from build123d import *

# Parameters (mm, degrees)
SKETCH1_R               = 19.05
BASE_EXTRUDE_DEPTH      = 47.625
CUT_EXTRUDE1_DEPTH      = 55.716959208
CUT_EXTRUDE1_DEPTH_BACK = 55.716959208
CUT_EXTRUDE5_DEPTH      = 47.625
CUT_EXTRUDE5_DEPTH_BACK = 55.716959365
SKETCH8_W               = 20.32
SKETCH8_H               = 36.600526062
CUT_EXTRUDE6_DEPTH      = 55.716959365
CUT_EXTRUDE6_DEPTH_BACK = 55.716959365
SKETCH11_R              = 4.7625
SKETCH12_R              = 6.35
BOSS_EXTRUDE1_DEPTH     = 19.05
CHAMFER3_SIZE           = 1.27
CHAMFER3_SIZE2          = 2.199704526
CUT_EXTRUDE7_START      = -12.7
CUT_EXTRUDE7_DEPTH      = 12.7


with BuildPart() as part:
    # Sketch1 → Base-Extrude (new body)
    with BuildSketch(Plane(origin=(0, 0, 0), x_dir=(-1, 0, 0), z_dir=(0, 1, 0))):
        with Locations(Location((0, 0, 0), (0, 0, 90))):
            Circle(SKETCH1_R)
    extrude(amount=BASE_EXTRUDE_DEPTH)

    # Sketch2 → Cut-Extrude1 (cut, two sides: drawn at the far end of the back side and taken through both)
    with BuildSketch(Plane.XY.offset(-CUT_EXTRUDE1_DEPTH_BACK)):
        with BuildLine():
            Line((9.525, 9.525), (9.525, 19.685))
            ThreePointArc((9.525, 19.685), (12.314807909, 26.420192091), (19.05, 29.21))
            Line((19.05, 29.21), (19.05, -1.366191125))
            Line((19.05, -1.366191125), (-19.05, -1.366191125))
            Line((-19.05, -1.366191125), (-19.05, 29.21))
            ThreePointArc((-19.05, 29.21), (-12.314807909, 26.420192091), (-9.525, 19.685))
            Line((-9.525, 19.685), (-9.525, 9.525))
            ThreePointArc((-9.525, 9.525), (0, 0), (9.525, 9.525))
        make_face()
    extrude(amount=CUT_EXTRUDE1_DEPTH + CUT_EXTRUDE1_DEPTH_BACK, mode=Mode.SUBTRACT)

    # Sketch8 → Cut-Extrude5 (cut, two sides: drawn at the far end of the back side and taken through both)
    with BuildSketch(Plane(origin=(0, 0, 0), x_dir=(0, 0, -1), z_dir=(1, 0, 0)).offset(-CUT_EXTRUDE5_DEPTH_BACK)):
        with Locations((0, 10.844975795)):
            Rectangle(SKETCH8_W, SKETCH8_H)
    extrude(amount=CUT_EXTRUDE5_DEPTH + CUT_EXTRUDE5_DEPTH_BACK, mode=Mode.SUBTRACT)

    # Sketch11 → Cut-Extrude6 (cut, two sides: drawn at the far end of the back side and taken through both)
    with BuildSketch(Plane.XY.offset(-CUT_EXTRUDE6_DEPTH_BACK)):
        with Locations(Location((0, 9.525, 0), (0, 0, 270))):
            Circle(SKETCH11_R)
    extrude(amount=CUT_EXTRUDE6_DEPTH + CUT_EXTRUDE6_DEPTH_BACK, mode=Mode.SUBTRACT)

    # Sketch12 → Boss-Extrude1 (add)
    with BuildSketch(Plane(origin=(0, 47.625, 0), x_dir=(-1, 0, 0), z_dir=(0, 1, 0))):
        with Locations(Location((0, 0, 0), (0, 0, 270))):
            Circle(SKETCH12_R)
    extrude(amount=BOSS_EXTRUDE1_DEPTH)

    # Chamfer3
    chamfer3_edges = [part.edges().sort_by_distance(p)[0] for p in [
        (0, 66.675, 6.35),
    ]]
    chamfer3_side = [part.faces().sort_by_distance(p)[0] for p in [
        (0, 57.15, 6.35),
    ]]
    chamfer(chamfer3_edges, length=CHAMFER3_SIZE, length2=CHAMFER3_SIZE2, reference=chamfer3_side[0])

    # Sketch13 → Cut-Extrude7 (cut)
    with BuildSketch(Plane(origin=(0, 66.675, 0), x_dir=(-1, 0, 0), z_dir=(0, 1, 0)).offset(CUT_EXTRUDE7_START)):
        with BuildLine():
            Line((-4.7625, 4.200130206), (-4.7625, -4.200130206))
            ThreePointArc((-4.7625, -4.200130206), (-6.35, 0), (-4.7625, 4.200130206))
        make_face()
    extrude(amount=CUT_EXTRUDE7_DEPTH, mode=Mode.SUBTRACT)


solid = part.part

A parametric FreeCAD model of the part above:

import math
import FreeCAD as App
import Part
import Sketcher

V = App.Vector
Q = App.Units.Quantity


def edges_at(feature, points):
    """Names of the edges that pass closest to the given points."""
    edges = feature.Shape.Edges
    near = lambda p: min(range(len(edges)), key=lambda i: edges[i].distToShape(Part.Vertex(*p))[0])
    return sorted({f"Edge{near(p) + 1}" for p in points})

doc = App.newDocument("Part")
body = doc.addObject("PartDesign::Body", "Body")

# Sketch on XZ plane
sketch1 = body.newObject("Sketcher::SketchObject", "Sketch")
sketch1.AttachmentSupport = (doc.getObject("XZ_Plane"), [""])
sketch1.MapMode = "FlatFace"
sketch1.addGeometry(Part.Circle(V(0, 0, 0), V(0, 0, 1), 19), False)
sketch1.addConstraint([
    Sketcher.Constraint("Coincident", 0, 3, -1, 1),
    Sketcher.Constraint("Diameter", 0, Q("1.5 in")),
])
pad1 = body.newObject("PartDesign::Pad", "Pad")
pad1.Profile = sketch1
pad1.Length = Q("1.875 in")
pad1.Reversed = True

# Sketch on XY plane
sketch2 = body.newObject("Sketcher::SketchObject", "Sketch001")
sketch2.AttachmentSupport = (doc.getObject("XY_Plane"), [""])
sketch2.MapMode = "FlatFace"
sketch2.addGeometry([
    Part.LineSegment(V(10, 20, 0), V(10, 10, 0)),  # 0
    Part.ArcOfCircle(Part.Circle(V(0, 10, 0), V(0, 0, 1), 10), math.radians(180), math.radians(360)),  # 1
    Part.LineSegment(V(-10, 10, 0), V(-10, 20, 0)),  # 2
    Part.ArcOfCircle(Part.Circle(V(-19, 20, 0), V(0, 0, 1), 10), math.radians(0), math.radians(90)),  # 3
    Part.LineSegment(V(-19, 29, 0), V(-19, -1, 0)),  # 4
    Part.LineSegment(V(-19, -1, 0), V(19, -1, 0)),  # 5
    Part.LineSegment(V(19, -1, 0), V(19, 29, 0)),  # 6
    Part.ArcOfCircle(Part.Circle(V(19, 20, 0), V(0, 0, 1), 10), math.radians(90), math.radians(180)),  # 7
], False)
sketch2.addConstraint([
    Sketcher.Constraint("Tangent", 0, 2, 1, 2),
    Sketcher.Constraint("Tangent", 1, 1, 2, 1),
    Sketcher.Constraint("Tangent", 2, 2, 3, 1),
    Sketcher.Constraint("Coincident", 3, 2, 4, 1),
    Sketcher.Constraint("Coincident", 4, 2, 5, 1),
    Sketcher.Constraint("Coincident", 5, 2, 6, 1),
    Sketcher.Constraint("Coincident", 6, 2, 7, 1),
    Sketcher.Constraint("Tangent", 7, 2, 0, 1),
    Sketcher.Constraint("Vertical", 0),
    Sketcher.Constraint("Vertical", 2),
    Sketcher.Constraint("Vertical", 4),
    Sketcher.Constraint("Horizontal", 5),
    Sketcher.Constraint("Vertical", 6),
    Sketcher.Constraint("Equal", 1, 3),
    Sketcher.Constraint("Equal", 3, 7),
    Sketcher.Constraint("Symmetric", 3, 3, 7, 3, -2),
    Sketcher.Constraint("Vertical", 7, 3, 5, 2),
    Sketcher.Constraint("DistanceX", 5, 1, 5, 2, Q("1.5 in")),
    Sketcher.Constraint("DistanceY", 0, 2, 0, 1, Q("0.4 in")),
    Sketcher.Constraint("Radius", 1, Q("0.375 in")),
    Sketcher.Constraint("DistanceY", -1, 1, 3, 2, Q("1.15 in")),
    Sketcher.Constraint("DistanceY", 4, 2, 4, 1, 30.576191),
])
pocket1 = body.newObject("PartDesign::Pocket", "Pocket")
pocket1.Profile = sketch2
pocket1.Type = "ThroughAll"
pocket1.Midplane = True

# Sketch on YZ plane
sketch3 = body.newObject("Sketcher::SketchObject", "Sketch002")
sketch3.AttachmentSupport = (doc.getObject("YZ_Plane"), [""])
sketch3.MapMode = "FlatFace"
sketch3.addGeometry([
    Part.LineSegment(V(29, 10, 0), V(-7, 10, 0)),
    Part.LineSegment(V(-7, 10, 0), V(-7, -10, 0)),
    Part.LineSegment(V(-7, -10, 0), V(29, -10, 0)),
    Part.LineSegment(V(29, -10, 0), V(29, 10, 0)),
], False)
sketch3.addConstraint([
    Sketcher.Constraint("Coincident", 0, 2, 1, 1),
    Sketcher.Constraint("Coincident", 1, 2, 2, 1),
    Sketcher.Constraint("Coincident", 2, 2, 3, 1),
    Sketcher.Constraint("Coincident", 3, 2, 0, 1),
    Sketcher.Constraint("Horizontal", 0),
    Sketcher.Constraint("Vertical", 1),
    Sketcher.Constraint("Horizontal", 2),
    Sketcher.Constraint("Vertical", 3),
    Sketcher.Constraint("DistanceY", 1, 2, 1, 1, Q("0.8 in")),
    Sketcher.Constraint("DistanceY", -1, 1, 0, 2, Q("0.4 in")),
    Sketcher.Constraint("DistanceX", 0, 2, 0, 1, 36.600526),
    Sketcher.Constraint("DistanceX", -1, 1, 2, 2, 29.145239),
])
pocket2 = body.newObject("PartDesign::Pocket", "Pocket001")
pocket2.Profile = sketch3
pocket2.Type = "ThroughAll"
pocket2.Midplane = True

# Sketch on XY plane
sketch4 = body.newObject("Sketcher::SketchObject", "Sketch003")
sketch4.AttachmentSupport = (doc.getObject("XY_Plane"), [""])
sketch4.MapMode = "FlatFace"
sketch4.addGeometry(Part.Circle(V(0, 9.5, 0), V(0, 0, 1), 4.8), False)
sketch4.addConstraint([
    Sketcher.Constraint("PointOnObject", 0, 3, -2),
    Sketcher.Constraint("Diameter", 0, Q("0.375 in")),
    Sketcher.Constraint("DistanceY", -1, 1, 0, 3, Q("0.375 in")),
])
pocket3 = body.newObject("PartDesign::Pocket", "Pocket002")
pocket3.Profile = sketch4
pocket3.Type = "ThroughAll"
pocket3.Midplane = True

# Sketch on XZ plane
sketch5 = body.newObject("Sketcher::SketchObject", "Sketch004")
sketch5.AttachmentSupport = (doc.getObject("XZ_Plane"), [""])
sketch5.MapMode = "FlatFace"
sketch5.AttachmentOffset = App.Placement(V(0, 0, -1.875 * 25.4), App.Rotation())
sketch5.addGeometry(Part.Circle(V(0, 0, 0), V(0, 0, 1), 6), False)
sketch5.addConstraint([
    Sketcher.Constraint("Coincident", 0, 3, -1, 1),
    Sketcher.Constraint("Diameter", 0, Q("0.5 in")),
])
pad2 = body.newObject("PartDesign::Pad", "Pad001")
pad2.Profile = sketch5
pad2.Length = Q("0.75 in")
pad2.Reversed = True
doc.recompute()

chamfer = body.newObject("PartDesign::Chamfer", "Chamfer")
chamfer.Base = (pad2, edges_at(pad2, [(0, 66.675, 6.35)]))
chamfer.ChamferType = "Two distances"
chamfer.Size = Q("0.05 in")
chamfer.Size2 = 2.199705

# Sketch on XZ plane
sketch6 = body.newObject("Sketcher::SketchObject", "Sketch005")
sketch6.AttachmentSupport = (doc.getObject("XZ_Plane"), [""])
sketch6.MapMode = "FlatFace"
sketch6.AttachmentOffset = App.Placement(V(0, 0, -2.125 * 25.4), App.Rotation())
sketch6.addGeometry([
    Part.LineSegment(V(5, -4, 0), V(5, 4, 0)),
    Part.ArcOfCircle(Part.Circle(V(0, 0, 0), V(0, 0, 1), 6), math.radians(-41), math.radians(41)),
], False)
sketch6.addConstraint([
    Sketcher.Constraint("Coincident", 0, 1, 1, 1),
    Sketcher.Constraint("Coincident", 1, 2, 0, 2),
    Sketcher.Constraint("Vertical", 0),
    Sketcher.Constraint("Coincident", 1, 3, -1, 1),
    Sketcher.Constraint("Radius", 1, Q("0.25 in")),
    Sketcher.Constraint("DistanceX", -1, 1, 0, 1, Q("0.1875 in")),
])
pocket4 = body.newObject("PartDesign::Pocket", "Pocket003")
pocket4.Profile = sketch6
pocket4.Length = Q("0.5 in")

doc.recompute()
